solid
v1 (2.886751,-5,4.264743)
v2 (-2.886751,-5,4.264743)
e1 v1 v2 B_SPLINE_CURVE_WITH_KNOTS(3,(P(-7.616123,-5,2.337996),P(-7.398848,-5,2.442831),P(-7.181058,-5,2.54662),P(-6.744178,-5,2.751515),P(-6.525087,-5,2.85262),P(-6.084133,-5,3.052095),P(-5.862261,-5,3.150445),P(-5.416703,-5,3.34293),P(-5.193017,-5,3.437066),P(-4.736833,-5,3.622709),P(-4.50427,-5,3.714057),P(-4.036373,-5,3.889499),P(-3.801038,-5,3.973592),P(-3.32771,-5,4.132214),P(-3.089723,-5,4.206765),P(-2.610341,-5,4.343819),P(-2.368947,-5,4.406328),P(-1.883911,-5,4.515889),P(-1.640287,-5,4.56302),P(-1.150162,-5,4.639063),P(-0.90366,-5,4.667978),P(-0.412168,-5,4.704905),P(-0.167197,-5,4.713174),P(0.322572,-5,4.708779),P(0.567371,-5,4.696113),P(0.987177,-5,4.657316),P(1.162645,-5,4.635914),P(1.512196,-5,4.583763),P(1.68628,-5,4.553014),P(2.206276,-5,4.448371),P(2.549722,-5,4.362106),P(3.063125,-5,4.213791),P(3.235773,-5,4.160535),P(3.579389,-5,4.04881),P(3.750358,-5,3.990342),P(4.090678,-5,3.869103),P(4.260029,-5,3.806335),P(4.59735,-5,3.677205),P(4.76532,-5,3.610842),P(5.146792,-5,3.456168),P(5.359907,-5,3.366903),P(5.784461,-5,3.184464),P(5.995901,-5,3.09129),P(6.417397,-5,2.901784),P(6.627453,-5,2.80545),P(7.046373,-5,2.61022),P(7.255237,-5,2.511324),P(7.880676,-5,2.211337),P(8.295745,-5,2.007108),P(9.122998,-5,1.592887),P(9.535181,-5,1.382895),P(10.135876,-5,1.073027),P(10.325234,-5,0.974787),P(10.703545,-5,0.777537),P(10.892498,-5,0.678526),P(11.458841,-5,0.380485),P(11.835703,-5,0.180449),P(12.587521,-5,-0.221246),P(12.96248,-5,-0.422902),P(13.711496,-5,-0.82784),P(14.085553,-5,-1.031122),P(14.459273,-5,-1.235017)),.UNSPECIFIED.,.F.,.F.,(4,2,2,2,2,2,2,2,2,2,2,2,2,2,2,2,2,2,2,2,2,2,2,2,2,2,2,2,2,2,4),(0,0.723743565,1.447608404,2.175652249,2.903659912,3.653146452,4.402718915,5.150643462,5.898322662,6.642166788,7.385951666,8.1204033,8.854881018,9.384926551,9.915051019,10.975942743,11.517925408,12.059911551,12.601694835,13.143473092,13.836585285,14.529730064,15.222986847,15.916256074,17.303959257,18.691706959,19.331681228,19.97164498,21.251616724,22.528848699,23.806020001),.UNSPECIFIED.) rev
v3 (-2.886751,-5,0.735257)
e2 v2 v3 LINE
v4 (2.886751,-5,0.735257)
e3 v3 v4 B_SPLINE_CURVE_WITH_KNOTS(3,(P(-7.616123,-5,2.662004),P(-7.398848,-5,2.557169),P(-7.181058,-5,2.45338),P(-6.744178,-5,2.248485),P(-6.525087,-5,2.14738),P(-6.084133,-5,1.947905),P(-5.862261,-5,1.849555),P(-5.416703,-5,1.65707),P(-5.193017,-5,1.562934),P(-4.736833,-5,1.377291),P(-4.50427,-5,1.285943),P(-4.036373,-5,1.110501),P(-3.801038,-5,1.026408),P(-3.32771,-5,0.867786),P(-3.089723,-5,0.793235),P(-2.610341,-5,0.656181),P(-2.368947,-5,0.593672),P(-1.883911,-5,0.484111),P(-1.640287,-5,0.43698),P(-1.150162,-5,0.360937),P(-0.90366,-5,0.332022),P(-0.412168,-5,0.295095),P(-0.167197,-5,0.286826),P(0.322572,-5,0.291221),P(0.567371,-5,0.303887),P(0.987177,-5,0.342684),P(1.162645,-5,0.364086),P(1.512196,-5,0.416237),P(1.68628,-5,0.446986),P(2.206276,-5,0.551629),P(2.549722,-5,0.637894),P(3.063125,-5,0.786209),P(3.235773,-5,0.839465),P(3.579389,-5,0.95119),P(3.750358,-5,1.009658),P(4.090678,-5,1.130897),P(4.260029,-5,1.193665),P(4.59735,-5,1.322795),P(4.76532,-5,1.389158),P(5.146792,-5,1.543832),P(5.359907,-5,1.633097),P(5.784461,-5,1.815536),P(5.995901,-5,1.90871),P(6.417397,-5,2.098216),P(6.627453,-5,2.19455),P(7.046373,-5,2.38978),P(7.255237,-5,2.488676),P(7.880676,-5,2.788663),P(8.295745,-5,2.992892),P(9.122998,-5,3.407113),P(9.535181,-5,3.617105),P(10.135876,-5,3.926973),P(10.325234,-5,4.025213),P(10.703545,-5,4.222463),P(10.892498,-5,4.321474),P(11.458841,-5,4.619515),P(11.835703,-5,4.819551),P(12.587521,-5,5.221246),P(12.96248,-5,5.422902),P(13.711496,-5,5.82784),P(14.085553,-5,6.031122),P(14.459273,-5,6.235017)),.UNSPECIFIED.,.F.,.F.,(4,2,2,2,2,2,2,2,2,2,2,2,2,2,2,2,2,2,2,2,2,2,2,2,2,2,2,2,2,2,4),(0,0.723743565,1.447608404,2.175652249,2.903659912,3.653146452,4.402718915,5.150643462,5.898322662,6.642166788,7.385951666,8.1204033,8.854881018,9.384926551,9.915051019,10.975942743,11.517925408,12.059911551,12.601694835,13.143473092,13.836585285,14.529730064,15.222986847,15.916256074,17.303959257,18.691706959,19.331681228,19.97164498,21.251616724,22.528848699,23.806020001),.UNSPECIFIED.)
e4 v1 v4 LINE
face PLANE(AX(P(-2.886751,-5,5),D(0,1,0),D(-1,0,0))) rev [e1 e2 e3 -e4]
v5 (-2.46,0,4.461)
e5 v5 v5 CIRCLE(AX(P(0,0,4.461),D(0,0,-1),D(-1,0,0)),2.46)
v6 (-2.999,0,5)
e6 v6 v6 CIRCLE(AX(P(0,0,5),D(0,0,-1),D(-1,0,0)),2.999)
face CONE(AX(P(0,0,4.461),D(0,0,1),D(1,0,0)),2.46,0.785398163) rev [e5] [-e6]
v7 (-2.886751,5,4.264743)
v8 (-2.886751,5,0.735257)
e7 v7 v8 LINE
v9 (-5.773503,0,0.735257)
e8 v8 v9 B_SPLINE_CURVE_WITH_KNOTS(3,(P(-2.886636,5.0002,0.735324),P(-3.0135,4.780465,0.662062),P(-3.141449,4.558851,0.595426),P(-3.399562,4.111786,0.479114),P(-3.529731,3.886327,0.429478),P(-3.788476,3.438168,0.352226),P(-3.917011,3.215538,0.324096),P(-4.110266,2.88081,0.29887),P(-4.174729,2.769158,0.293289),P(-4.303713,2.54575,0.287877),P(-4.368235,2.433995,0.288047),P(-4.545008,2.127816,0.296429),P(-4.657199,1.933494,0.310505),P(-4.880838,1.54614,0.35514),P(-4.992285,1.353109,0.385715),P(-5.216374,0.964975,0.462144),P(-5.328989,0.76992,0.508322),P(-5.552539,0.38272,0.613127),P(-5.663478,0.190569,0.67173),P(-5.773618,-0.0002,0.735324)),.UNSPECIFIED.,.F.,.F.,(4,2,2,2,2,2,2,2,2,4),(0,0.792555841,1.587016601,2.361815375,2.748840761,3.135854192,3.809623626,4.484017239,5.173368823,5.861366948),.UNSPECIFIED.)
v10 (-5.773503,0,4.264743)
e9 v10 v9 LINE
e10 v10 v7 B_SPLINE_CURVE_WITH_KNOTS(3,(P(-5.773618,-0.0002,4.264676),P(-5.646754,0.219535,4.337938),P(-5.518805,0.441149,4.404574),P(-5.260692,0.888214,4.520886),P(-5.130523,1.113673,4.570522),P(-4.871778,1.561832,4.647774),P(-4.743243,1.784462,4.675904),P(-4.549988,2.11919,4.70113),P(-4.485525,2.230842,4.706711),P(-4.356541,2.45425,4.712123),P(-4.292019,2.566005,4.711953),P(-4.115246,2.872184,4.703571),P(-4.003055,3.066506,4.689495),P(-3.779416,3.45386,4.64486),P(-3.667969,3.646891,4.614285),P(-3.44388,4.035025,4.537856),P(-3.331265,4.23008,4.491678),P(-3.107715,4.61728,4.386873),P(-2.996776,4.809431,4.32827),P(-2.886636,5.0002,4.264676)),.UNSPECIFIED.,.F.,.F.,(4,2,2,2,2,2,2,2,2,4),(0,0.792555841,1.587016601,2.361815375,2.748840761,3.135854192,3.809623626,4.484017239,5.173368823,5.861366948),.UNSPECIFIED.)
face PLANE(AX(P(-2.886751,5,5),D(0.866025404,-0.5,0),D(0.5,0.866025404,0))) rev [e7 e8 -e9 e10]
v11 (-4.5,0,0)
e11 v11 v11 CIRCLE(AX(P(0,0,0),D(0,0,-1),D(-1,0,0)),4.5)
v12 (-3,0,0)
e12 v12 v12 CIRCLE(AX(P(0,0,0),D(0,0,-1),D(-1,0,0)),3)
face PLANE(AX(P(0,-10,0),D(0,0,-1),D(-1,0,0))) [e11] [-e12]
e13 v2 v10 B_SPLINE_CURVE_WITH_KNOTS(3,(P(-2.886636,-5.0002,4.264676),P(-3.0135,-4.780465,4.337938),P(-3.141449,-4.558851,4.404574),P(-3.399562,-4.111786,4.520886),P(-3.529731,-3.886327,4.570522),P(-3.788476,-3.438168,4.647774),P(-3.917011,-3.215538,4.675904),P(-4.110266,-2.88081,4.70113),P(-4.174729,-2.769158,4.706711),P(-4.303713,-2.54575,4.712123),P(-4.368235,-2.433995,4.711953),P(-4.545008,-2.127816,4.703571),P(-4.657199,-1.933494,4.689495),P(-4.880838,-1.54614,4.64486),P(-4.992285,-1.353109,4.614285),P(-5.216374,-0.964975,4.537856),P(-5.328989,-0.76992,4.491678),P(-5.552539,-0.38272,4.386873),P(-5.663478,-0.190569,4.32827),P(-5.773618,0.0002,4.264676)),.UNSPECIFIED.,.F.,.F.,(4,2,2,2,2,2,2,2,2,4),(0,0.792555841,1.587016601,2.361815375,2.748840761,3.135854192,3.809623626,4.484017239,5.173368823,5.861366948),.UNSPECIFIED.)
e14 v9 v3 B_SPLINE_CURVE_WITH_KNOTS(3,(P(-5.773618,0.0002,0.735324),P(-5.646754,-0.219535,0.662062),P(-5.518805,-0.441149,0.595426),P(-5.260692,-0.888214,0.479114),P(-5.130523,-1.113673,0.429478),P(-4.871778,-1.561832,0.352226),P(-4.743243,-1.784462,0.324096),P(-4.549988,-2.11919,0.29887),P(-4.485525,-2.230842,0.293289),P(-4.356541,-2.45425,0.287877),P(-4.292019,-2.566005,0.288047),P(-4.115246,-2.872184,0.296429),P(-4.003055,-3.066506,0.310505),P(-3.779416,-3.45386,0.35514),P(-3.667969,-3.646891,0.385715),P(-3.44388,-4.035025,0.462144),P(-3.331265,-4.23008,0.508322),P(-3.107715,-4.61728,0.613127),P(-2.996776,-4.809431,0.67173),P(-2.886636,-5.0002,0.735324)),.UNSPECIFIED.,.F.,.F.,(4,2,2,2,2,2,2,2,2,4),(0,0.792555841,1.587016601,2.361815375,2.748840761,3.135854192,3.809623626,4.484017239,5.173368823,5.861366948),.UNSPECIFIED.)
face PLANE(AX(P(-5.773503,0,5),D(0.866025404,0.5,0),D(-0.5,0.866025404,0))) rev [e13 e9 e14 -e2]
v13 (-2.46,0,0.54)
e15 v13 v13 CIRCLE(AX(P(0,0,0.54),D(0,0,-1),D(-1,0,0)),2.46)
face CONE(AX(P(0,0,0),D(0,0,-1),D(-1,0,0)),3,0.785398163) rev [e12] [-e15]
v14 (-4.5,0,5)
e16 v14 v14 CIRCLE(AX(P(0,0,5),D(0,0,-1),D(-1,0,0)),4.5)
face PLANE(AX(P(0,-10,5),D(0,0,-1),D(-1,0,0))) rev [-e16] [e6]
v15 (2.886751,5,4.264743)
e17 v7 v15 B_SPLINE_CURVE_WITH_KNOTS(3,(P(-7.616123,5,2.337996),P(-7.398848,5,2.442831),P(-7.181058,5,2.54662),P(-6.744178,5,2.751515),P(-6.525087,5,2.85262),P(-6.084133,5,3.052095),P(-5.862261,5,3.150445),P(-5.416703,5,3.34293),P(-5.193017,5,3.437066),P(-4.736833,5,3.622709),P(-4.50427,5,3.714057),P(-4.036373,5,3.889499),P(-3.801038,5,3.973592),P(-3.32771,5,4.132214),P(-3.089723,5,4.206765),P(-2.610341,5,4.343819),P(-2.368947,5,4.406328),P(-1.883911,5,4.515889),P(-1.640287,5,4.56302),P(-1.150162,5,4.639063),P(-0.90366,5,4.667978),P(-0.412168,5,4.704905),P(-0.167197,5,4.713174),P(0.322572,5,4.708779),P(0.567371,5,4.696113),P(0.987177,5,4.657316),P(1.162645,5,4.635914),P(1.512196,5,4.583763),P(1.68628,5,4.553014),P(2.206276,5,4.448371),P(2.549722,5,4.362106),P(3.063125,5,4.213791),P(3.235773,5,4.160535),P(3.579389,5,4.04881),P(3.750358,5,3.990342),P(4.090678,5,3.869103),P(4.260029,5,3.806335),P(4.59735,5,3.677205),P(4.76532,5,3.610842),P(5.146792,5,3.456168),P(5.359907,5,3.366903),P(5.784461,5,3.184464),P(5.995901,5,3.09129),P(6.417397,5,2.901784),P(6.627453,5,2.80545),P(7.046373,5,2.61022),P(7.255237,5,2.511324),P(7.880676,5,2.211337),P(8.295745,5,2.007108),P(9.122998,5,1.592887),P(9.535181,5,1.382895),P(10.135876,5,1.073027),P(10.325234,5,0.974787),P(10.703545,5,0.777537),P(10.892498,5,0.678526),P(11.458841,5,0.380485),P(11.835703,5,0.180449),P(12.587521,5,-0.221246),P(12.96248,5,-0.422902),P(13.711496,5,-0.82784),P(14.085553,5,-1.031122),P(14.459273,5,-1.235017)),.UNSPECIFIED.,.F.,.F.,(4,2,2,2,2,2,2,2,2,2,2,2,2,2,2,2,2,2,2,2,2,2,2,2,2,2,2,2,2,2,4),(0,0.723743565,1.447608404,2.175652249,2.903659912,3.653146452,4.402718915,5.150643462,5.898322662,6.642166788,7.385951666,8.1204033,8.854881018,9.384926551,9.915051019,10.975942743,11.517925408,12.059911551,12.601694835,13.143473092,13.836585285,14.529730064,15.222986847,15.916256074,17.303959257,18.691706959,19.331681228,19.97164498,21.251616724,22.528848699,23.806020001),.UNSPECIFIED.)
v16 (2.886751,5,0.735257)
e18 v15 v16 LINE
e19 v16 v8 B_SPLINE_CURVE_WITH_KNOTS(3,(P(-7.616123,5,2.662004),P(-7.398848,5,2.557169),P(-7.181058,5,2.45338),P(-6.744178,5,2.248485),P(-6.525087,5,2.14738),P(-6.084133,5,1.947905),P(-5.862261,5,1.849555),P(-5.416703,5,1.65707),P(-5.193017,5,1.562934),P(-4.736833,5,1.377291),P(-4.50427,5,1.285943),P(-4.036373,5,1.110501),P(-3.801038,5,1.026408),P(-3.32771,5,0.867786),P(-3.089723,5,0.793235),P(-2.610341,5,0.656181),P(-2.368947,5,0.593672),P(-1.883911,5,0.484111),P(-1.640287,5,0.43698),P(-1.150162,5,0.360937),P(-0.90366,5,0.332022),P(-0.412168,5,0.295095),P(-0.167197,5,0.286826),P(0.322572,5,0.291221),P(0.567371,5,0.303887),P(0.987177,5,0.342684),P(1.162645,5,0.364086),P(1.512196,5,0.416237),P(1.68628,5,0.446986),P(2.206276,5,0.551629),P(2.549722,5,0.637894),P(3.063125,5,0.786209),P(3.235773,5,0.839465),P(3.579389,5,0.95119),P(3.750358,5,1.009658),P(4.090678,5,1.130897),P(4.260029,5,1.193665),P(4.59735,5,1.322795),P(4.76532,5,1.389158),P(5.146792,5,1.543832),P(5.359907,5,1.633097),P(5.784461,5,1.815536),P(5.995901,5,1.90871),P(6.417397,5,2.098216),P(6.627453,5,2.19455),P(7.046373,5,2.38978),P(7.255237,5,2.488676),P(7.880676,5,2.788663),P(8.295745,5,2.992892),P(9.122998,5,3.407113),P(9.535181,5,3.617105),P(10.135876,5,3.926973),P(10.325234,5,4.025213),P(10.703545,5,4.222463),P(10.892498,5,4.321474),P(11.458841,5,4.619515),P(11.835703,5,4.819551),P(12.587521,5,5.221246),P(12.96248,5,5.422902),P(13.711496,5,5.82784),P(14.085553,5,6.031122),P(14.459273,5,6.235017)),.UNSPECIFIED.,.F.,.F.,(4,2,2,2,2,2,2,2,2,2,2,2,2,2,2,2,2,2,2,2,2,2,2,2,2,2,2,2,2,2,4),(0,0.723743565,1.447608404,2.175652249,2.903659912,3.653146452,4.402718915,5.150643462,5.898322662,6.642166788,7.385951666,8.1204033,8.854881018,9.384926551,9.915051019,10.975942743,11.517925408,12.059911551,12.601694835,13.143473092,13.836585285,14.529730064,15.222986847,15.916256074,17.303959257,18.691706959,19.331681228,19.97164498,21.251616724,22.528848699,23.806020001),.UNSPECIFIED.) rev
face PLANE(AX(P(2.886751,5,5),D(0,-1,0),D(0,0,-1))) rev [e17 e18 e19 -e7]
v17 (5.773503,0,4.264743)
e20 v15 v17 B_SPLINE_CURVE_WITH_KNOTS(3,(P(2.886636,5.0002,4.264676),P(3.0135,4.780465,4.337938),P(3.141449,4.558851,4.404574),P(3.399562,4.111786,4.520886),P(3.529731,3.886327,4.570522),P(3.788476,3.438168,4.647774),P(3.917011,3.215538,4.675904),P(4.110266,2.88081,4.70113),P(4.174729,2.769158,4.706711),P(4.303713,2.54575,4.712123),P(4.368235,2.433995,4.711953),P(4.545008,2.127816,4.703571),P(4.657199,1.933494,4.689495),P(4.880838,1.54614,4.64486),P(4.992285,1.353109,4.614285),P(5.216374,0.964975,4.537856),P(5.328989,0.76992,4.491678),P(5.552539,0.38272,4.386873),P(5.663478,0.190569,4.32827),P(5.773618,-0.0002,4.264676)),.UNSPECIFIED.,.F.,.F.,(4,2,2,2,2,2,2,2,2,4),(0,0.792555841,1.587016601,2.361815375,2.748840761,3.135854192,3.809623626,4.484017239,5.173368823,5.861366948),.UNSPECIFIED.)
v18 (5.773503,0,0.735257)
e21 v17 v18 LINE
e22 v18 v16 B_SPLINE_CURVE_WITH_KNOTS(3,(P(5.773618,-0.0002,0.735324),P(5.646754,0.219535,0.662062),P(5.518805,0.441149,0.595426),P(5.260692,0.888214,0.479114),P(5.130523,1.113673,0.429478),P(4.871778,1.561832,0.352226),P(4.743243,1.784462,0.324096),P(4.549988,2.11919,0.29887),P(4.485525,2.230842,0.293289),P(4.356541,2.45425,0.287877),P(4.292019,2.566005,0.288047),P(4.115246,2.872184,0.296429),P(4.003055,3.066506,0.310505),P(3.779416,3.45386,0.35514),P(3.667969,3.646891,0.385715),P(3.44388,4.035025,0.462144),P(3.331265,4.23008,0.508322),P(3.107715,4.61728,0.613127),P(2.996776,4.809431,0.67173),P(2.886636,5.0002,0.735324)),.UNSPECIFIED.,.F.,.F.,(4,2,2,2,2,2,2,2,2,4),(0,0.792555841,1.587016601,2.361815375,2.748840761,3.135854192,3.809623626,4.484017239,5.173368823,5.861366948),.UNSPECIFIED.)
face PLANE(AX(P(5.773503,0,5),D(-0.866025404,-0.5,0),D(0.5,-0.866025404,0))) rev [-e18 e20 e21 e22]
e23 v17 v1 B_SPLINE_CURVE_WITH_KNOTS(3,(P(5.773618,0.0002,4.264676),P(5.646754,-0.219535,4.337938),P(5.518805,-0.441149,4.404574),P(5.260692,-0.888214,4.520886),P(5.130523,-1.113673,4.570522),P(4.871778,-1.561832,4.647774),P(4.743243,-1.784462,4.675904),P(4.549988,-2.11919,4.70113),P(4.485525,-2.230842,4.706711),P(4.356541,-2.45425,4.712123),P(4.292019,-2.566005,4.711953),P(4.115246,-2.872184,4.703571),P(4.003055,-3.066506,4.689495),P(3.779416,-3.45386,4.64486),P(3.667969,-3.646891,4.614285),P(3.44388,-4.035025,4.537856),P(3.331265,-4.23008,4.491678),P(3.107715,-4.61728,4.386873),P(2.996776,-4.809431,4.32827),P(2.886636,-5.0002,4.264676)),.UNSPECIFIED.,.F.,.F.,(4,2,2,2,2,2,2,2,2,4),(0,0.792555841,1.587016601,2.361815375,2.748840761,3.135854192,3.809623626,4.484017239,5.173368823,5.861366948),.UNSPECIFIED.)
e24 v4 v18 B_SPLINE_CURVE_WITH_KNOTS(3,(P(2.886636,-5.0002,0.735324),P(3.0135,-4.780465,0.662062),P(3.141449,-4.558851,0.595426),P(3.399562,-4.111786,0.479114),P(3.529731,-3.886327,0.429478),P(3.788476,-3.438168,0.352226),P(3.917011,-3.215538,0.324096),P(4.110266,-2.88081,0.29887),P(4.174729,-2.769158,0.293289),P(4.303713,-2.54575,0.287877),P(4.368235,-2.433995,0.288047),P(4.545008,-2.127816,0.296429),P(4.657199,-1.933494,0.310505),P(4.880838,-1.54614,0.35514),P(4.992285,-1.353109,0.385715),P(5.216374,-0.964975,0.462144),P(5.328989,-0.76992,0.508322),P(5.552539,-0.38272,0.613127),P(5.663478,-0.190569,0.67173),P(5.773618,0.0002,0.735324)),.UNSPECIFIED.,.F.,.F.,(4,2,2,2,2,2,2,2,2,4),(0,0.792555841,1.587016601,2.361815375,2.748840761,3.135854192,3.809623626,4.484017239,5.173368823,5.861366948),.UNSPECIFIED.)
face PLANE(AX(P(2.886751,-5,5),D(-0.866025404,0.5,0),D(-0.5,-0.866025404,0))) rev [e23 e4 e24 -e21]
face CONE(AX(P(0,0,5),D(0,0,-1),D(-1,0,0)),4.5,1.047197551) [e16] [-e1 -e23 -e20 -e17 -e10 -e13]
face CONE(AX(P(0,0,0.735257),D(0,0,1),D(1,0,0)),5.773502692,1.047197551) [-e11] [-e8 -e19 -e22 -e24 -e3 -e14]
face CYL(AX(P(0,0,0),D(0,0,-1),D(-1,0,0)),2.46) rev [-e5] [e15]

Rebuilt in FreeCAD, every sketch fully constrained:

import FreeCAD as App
import Part
import Sketcher
Q = App.Units.Quantity


def add_polygon(sketch, points):
    """Adds a closed chain of lines whose ends are joined by coincident constraints."""
    first, n = sketch.GeometryCount, len(points)
    for a, b in zip(points, points[1:] + points[:1]):
        sketch.addGeometry(Part.LineSegment(App.Vector(*a, 0), App.Vector(*b, 0)), False)
    for i in range(n):
        sketch.addConstraint(Sketcher.Constraint("Coincident", first + i, 2, first + (i + 1) % n, 1))

doc = App.newDocument("Part")
body = doc.addObject("PartDesign::Body", "Body")

# Sketch on XY plane
sketch1 = body.newObject("Sketcher::SketchObject", "Sketch")
sketch1.AttachmentSupport = (doc.getObject("XY_Plane"), [""])
sketch1.MapMode = "FlatFace"
add_polygon(sketch1, [(6, 0), (3, 5), (-3, 5), (-6, 0), (-3, -5), (3, -5)])  # lines 0-5
sketch1.addConstraint(Sketcher.Constraint("Horizontal", 1))
sketch1.addConstraint(Sketcher.Constraint("Horizontal", 4))
sketch1.addConstraint(Sketcher.Constraint("Symmetric", 0, 2, 3, 2, -1, 1))
sketch1.addConstraint(Sketcher.Constraint("Symmetric", 2, 2, 5, 2, -1, 1))
sketch1.addConstraint(Sketcher.Constraint("PointOnObject", 2, 2, -1))
sketch1.addConstraint(Sketcher.Constraint("Parallel", 2, 5))
sketch1.addConstraint(Sketcher.Constraint("Vertical", 1, 2, 3, 2))
sketch1.addConstraint(Sketcher.Constraint("Angle", 0, Q("120 deg")))
sketch1.addConstraint(Sketcher.Constraint("DistanceY", -1, 1, 0, 2, 5.0))
sketch1.addConstraint(Sketcher.Constraint("DistanceX", 1, 2, 1, 1, 5.773503))
pad1 = body.newObject("PartDesign::Pad", "Pad")
pad1.Profile = sketch1
pad1.Length = 5

# Sketch on XZ plane
sketch2 = body.newObject("Sketcher::SketchObject", "Sketch001")
sketch2.AttachmentSupport = (doc.getObject("XZ_Plane"), [""])
sketch2.MapMode = "FlatFace"
add_polygon(sketch2, [(-4.5, 0), (-5.8, 0), (-5.8, 0.7)])  # lines 0-2
add_polygon(sketch2, [(-5.8, 4.3), (-5.8, 5), (-4.5, 5)])  # lines 3-5
sketch2.addConstraint(Sketcher.Constraint("Horizontal", 0))
sketch2.addConstraint(Sketcher.Constraint("Vertical", 1))
sketch2.addConstraint(Sketcher.Constraint("Vertical", 3))
sketch2.addConstraint(Sketcher.Constraint("Horizontal", 4))
sketch2.addConstraint(Sketcher.Constraint("PointOnObject", 0, 2, -1))
sketch2.addConstraint(Sketcher.Constraint("Vertical", 1, 2, 3, 2))
sketch2.addConstraint(Sketcher.Constraint("Vertical", 2, 2, 4, 2))
sketch2.addConstraint(Sketcher.Constraint("Equal", 1, 3))
sketch2.addConstraint(Sketcher.Constraint("Angle", 2, Q("-30 deg")))
sketch2.addConstraint(Sketcher.Constraint("DistanceY", -1, 1, 3, 2, 5.0))
sketch2.addConstraint(Sketcher.Constraint("DistanceX", 2, 2, -1, 1, 4.5))
sketch2.addConstraint(Sketcher.Constraint("DistanceX", 0, 2, 0, 1, 1.273503))
groove = body.newObject("PartDesign::Groove", "Groove")
groove.Profile = sketch2
groove.ReferenceAxis = (sketch2, ["V_Axis"])
groove.Angle = 360

# Sketch on YZ plane
sketch3 = body.newObject("Sketcher::SketchObject", "Sketch002")
sketch3.AttachmentSupport = (doc.getObject("YZ_Plane"), [""])
sketch3.MapMode = "FlatFace"
add_polygon(sketch3, [(0, 5), (0, 0), (3, 0), (2.5, 0.5), (2.5, 4.5), (3, 5)])  # lines 0-5
sketch3.addConstraint(Sketcher.Constraint("Vertical", 0))
sketch3.addConstraint(Sketcher.Constraint("Horizontal", 1))
sketch3.addConstraint(Sketcher.Constraint("Vertical", 3))
sketch3.addConstraint(Sketcher.Constraint("Horizontal", 5))
sketch3.addConstraint(Sketcher.Constraint("Coincident", 0, 2, -1, 1))
sketch3.addConstraint(Sketcher.Constraint("Perpendicular", 2, 4))
sketch3.addConstraint(Sketcher.Constraint("Vertical", 1, 2, 4, 2))
sketch3.addConstraint(Sketcher.Constraint("Equal", 2, 4))
sketch3.addConstraint(Sketcher.Constraint("DistanceX", 1, 1, 1, 2, 3.0))
sketch3.addConstraint(Sketcher.Constraint("DistanceY", 0, 2, 0, 1, 5.0))
sketch3.addConstraint(Sketcher.Constraint("DistanceY", 3, 1, 3, 2, 3.92))
groove2 = body.newObject("PartDesign::Groove", "Groove001")
groove2.Profile = sketch3
groove2.ReferenceAxis = (sketch3, ["V_Axis"])
groove2.Angle = 360

doc.recompute()
